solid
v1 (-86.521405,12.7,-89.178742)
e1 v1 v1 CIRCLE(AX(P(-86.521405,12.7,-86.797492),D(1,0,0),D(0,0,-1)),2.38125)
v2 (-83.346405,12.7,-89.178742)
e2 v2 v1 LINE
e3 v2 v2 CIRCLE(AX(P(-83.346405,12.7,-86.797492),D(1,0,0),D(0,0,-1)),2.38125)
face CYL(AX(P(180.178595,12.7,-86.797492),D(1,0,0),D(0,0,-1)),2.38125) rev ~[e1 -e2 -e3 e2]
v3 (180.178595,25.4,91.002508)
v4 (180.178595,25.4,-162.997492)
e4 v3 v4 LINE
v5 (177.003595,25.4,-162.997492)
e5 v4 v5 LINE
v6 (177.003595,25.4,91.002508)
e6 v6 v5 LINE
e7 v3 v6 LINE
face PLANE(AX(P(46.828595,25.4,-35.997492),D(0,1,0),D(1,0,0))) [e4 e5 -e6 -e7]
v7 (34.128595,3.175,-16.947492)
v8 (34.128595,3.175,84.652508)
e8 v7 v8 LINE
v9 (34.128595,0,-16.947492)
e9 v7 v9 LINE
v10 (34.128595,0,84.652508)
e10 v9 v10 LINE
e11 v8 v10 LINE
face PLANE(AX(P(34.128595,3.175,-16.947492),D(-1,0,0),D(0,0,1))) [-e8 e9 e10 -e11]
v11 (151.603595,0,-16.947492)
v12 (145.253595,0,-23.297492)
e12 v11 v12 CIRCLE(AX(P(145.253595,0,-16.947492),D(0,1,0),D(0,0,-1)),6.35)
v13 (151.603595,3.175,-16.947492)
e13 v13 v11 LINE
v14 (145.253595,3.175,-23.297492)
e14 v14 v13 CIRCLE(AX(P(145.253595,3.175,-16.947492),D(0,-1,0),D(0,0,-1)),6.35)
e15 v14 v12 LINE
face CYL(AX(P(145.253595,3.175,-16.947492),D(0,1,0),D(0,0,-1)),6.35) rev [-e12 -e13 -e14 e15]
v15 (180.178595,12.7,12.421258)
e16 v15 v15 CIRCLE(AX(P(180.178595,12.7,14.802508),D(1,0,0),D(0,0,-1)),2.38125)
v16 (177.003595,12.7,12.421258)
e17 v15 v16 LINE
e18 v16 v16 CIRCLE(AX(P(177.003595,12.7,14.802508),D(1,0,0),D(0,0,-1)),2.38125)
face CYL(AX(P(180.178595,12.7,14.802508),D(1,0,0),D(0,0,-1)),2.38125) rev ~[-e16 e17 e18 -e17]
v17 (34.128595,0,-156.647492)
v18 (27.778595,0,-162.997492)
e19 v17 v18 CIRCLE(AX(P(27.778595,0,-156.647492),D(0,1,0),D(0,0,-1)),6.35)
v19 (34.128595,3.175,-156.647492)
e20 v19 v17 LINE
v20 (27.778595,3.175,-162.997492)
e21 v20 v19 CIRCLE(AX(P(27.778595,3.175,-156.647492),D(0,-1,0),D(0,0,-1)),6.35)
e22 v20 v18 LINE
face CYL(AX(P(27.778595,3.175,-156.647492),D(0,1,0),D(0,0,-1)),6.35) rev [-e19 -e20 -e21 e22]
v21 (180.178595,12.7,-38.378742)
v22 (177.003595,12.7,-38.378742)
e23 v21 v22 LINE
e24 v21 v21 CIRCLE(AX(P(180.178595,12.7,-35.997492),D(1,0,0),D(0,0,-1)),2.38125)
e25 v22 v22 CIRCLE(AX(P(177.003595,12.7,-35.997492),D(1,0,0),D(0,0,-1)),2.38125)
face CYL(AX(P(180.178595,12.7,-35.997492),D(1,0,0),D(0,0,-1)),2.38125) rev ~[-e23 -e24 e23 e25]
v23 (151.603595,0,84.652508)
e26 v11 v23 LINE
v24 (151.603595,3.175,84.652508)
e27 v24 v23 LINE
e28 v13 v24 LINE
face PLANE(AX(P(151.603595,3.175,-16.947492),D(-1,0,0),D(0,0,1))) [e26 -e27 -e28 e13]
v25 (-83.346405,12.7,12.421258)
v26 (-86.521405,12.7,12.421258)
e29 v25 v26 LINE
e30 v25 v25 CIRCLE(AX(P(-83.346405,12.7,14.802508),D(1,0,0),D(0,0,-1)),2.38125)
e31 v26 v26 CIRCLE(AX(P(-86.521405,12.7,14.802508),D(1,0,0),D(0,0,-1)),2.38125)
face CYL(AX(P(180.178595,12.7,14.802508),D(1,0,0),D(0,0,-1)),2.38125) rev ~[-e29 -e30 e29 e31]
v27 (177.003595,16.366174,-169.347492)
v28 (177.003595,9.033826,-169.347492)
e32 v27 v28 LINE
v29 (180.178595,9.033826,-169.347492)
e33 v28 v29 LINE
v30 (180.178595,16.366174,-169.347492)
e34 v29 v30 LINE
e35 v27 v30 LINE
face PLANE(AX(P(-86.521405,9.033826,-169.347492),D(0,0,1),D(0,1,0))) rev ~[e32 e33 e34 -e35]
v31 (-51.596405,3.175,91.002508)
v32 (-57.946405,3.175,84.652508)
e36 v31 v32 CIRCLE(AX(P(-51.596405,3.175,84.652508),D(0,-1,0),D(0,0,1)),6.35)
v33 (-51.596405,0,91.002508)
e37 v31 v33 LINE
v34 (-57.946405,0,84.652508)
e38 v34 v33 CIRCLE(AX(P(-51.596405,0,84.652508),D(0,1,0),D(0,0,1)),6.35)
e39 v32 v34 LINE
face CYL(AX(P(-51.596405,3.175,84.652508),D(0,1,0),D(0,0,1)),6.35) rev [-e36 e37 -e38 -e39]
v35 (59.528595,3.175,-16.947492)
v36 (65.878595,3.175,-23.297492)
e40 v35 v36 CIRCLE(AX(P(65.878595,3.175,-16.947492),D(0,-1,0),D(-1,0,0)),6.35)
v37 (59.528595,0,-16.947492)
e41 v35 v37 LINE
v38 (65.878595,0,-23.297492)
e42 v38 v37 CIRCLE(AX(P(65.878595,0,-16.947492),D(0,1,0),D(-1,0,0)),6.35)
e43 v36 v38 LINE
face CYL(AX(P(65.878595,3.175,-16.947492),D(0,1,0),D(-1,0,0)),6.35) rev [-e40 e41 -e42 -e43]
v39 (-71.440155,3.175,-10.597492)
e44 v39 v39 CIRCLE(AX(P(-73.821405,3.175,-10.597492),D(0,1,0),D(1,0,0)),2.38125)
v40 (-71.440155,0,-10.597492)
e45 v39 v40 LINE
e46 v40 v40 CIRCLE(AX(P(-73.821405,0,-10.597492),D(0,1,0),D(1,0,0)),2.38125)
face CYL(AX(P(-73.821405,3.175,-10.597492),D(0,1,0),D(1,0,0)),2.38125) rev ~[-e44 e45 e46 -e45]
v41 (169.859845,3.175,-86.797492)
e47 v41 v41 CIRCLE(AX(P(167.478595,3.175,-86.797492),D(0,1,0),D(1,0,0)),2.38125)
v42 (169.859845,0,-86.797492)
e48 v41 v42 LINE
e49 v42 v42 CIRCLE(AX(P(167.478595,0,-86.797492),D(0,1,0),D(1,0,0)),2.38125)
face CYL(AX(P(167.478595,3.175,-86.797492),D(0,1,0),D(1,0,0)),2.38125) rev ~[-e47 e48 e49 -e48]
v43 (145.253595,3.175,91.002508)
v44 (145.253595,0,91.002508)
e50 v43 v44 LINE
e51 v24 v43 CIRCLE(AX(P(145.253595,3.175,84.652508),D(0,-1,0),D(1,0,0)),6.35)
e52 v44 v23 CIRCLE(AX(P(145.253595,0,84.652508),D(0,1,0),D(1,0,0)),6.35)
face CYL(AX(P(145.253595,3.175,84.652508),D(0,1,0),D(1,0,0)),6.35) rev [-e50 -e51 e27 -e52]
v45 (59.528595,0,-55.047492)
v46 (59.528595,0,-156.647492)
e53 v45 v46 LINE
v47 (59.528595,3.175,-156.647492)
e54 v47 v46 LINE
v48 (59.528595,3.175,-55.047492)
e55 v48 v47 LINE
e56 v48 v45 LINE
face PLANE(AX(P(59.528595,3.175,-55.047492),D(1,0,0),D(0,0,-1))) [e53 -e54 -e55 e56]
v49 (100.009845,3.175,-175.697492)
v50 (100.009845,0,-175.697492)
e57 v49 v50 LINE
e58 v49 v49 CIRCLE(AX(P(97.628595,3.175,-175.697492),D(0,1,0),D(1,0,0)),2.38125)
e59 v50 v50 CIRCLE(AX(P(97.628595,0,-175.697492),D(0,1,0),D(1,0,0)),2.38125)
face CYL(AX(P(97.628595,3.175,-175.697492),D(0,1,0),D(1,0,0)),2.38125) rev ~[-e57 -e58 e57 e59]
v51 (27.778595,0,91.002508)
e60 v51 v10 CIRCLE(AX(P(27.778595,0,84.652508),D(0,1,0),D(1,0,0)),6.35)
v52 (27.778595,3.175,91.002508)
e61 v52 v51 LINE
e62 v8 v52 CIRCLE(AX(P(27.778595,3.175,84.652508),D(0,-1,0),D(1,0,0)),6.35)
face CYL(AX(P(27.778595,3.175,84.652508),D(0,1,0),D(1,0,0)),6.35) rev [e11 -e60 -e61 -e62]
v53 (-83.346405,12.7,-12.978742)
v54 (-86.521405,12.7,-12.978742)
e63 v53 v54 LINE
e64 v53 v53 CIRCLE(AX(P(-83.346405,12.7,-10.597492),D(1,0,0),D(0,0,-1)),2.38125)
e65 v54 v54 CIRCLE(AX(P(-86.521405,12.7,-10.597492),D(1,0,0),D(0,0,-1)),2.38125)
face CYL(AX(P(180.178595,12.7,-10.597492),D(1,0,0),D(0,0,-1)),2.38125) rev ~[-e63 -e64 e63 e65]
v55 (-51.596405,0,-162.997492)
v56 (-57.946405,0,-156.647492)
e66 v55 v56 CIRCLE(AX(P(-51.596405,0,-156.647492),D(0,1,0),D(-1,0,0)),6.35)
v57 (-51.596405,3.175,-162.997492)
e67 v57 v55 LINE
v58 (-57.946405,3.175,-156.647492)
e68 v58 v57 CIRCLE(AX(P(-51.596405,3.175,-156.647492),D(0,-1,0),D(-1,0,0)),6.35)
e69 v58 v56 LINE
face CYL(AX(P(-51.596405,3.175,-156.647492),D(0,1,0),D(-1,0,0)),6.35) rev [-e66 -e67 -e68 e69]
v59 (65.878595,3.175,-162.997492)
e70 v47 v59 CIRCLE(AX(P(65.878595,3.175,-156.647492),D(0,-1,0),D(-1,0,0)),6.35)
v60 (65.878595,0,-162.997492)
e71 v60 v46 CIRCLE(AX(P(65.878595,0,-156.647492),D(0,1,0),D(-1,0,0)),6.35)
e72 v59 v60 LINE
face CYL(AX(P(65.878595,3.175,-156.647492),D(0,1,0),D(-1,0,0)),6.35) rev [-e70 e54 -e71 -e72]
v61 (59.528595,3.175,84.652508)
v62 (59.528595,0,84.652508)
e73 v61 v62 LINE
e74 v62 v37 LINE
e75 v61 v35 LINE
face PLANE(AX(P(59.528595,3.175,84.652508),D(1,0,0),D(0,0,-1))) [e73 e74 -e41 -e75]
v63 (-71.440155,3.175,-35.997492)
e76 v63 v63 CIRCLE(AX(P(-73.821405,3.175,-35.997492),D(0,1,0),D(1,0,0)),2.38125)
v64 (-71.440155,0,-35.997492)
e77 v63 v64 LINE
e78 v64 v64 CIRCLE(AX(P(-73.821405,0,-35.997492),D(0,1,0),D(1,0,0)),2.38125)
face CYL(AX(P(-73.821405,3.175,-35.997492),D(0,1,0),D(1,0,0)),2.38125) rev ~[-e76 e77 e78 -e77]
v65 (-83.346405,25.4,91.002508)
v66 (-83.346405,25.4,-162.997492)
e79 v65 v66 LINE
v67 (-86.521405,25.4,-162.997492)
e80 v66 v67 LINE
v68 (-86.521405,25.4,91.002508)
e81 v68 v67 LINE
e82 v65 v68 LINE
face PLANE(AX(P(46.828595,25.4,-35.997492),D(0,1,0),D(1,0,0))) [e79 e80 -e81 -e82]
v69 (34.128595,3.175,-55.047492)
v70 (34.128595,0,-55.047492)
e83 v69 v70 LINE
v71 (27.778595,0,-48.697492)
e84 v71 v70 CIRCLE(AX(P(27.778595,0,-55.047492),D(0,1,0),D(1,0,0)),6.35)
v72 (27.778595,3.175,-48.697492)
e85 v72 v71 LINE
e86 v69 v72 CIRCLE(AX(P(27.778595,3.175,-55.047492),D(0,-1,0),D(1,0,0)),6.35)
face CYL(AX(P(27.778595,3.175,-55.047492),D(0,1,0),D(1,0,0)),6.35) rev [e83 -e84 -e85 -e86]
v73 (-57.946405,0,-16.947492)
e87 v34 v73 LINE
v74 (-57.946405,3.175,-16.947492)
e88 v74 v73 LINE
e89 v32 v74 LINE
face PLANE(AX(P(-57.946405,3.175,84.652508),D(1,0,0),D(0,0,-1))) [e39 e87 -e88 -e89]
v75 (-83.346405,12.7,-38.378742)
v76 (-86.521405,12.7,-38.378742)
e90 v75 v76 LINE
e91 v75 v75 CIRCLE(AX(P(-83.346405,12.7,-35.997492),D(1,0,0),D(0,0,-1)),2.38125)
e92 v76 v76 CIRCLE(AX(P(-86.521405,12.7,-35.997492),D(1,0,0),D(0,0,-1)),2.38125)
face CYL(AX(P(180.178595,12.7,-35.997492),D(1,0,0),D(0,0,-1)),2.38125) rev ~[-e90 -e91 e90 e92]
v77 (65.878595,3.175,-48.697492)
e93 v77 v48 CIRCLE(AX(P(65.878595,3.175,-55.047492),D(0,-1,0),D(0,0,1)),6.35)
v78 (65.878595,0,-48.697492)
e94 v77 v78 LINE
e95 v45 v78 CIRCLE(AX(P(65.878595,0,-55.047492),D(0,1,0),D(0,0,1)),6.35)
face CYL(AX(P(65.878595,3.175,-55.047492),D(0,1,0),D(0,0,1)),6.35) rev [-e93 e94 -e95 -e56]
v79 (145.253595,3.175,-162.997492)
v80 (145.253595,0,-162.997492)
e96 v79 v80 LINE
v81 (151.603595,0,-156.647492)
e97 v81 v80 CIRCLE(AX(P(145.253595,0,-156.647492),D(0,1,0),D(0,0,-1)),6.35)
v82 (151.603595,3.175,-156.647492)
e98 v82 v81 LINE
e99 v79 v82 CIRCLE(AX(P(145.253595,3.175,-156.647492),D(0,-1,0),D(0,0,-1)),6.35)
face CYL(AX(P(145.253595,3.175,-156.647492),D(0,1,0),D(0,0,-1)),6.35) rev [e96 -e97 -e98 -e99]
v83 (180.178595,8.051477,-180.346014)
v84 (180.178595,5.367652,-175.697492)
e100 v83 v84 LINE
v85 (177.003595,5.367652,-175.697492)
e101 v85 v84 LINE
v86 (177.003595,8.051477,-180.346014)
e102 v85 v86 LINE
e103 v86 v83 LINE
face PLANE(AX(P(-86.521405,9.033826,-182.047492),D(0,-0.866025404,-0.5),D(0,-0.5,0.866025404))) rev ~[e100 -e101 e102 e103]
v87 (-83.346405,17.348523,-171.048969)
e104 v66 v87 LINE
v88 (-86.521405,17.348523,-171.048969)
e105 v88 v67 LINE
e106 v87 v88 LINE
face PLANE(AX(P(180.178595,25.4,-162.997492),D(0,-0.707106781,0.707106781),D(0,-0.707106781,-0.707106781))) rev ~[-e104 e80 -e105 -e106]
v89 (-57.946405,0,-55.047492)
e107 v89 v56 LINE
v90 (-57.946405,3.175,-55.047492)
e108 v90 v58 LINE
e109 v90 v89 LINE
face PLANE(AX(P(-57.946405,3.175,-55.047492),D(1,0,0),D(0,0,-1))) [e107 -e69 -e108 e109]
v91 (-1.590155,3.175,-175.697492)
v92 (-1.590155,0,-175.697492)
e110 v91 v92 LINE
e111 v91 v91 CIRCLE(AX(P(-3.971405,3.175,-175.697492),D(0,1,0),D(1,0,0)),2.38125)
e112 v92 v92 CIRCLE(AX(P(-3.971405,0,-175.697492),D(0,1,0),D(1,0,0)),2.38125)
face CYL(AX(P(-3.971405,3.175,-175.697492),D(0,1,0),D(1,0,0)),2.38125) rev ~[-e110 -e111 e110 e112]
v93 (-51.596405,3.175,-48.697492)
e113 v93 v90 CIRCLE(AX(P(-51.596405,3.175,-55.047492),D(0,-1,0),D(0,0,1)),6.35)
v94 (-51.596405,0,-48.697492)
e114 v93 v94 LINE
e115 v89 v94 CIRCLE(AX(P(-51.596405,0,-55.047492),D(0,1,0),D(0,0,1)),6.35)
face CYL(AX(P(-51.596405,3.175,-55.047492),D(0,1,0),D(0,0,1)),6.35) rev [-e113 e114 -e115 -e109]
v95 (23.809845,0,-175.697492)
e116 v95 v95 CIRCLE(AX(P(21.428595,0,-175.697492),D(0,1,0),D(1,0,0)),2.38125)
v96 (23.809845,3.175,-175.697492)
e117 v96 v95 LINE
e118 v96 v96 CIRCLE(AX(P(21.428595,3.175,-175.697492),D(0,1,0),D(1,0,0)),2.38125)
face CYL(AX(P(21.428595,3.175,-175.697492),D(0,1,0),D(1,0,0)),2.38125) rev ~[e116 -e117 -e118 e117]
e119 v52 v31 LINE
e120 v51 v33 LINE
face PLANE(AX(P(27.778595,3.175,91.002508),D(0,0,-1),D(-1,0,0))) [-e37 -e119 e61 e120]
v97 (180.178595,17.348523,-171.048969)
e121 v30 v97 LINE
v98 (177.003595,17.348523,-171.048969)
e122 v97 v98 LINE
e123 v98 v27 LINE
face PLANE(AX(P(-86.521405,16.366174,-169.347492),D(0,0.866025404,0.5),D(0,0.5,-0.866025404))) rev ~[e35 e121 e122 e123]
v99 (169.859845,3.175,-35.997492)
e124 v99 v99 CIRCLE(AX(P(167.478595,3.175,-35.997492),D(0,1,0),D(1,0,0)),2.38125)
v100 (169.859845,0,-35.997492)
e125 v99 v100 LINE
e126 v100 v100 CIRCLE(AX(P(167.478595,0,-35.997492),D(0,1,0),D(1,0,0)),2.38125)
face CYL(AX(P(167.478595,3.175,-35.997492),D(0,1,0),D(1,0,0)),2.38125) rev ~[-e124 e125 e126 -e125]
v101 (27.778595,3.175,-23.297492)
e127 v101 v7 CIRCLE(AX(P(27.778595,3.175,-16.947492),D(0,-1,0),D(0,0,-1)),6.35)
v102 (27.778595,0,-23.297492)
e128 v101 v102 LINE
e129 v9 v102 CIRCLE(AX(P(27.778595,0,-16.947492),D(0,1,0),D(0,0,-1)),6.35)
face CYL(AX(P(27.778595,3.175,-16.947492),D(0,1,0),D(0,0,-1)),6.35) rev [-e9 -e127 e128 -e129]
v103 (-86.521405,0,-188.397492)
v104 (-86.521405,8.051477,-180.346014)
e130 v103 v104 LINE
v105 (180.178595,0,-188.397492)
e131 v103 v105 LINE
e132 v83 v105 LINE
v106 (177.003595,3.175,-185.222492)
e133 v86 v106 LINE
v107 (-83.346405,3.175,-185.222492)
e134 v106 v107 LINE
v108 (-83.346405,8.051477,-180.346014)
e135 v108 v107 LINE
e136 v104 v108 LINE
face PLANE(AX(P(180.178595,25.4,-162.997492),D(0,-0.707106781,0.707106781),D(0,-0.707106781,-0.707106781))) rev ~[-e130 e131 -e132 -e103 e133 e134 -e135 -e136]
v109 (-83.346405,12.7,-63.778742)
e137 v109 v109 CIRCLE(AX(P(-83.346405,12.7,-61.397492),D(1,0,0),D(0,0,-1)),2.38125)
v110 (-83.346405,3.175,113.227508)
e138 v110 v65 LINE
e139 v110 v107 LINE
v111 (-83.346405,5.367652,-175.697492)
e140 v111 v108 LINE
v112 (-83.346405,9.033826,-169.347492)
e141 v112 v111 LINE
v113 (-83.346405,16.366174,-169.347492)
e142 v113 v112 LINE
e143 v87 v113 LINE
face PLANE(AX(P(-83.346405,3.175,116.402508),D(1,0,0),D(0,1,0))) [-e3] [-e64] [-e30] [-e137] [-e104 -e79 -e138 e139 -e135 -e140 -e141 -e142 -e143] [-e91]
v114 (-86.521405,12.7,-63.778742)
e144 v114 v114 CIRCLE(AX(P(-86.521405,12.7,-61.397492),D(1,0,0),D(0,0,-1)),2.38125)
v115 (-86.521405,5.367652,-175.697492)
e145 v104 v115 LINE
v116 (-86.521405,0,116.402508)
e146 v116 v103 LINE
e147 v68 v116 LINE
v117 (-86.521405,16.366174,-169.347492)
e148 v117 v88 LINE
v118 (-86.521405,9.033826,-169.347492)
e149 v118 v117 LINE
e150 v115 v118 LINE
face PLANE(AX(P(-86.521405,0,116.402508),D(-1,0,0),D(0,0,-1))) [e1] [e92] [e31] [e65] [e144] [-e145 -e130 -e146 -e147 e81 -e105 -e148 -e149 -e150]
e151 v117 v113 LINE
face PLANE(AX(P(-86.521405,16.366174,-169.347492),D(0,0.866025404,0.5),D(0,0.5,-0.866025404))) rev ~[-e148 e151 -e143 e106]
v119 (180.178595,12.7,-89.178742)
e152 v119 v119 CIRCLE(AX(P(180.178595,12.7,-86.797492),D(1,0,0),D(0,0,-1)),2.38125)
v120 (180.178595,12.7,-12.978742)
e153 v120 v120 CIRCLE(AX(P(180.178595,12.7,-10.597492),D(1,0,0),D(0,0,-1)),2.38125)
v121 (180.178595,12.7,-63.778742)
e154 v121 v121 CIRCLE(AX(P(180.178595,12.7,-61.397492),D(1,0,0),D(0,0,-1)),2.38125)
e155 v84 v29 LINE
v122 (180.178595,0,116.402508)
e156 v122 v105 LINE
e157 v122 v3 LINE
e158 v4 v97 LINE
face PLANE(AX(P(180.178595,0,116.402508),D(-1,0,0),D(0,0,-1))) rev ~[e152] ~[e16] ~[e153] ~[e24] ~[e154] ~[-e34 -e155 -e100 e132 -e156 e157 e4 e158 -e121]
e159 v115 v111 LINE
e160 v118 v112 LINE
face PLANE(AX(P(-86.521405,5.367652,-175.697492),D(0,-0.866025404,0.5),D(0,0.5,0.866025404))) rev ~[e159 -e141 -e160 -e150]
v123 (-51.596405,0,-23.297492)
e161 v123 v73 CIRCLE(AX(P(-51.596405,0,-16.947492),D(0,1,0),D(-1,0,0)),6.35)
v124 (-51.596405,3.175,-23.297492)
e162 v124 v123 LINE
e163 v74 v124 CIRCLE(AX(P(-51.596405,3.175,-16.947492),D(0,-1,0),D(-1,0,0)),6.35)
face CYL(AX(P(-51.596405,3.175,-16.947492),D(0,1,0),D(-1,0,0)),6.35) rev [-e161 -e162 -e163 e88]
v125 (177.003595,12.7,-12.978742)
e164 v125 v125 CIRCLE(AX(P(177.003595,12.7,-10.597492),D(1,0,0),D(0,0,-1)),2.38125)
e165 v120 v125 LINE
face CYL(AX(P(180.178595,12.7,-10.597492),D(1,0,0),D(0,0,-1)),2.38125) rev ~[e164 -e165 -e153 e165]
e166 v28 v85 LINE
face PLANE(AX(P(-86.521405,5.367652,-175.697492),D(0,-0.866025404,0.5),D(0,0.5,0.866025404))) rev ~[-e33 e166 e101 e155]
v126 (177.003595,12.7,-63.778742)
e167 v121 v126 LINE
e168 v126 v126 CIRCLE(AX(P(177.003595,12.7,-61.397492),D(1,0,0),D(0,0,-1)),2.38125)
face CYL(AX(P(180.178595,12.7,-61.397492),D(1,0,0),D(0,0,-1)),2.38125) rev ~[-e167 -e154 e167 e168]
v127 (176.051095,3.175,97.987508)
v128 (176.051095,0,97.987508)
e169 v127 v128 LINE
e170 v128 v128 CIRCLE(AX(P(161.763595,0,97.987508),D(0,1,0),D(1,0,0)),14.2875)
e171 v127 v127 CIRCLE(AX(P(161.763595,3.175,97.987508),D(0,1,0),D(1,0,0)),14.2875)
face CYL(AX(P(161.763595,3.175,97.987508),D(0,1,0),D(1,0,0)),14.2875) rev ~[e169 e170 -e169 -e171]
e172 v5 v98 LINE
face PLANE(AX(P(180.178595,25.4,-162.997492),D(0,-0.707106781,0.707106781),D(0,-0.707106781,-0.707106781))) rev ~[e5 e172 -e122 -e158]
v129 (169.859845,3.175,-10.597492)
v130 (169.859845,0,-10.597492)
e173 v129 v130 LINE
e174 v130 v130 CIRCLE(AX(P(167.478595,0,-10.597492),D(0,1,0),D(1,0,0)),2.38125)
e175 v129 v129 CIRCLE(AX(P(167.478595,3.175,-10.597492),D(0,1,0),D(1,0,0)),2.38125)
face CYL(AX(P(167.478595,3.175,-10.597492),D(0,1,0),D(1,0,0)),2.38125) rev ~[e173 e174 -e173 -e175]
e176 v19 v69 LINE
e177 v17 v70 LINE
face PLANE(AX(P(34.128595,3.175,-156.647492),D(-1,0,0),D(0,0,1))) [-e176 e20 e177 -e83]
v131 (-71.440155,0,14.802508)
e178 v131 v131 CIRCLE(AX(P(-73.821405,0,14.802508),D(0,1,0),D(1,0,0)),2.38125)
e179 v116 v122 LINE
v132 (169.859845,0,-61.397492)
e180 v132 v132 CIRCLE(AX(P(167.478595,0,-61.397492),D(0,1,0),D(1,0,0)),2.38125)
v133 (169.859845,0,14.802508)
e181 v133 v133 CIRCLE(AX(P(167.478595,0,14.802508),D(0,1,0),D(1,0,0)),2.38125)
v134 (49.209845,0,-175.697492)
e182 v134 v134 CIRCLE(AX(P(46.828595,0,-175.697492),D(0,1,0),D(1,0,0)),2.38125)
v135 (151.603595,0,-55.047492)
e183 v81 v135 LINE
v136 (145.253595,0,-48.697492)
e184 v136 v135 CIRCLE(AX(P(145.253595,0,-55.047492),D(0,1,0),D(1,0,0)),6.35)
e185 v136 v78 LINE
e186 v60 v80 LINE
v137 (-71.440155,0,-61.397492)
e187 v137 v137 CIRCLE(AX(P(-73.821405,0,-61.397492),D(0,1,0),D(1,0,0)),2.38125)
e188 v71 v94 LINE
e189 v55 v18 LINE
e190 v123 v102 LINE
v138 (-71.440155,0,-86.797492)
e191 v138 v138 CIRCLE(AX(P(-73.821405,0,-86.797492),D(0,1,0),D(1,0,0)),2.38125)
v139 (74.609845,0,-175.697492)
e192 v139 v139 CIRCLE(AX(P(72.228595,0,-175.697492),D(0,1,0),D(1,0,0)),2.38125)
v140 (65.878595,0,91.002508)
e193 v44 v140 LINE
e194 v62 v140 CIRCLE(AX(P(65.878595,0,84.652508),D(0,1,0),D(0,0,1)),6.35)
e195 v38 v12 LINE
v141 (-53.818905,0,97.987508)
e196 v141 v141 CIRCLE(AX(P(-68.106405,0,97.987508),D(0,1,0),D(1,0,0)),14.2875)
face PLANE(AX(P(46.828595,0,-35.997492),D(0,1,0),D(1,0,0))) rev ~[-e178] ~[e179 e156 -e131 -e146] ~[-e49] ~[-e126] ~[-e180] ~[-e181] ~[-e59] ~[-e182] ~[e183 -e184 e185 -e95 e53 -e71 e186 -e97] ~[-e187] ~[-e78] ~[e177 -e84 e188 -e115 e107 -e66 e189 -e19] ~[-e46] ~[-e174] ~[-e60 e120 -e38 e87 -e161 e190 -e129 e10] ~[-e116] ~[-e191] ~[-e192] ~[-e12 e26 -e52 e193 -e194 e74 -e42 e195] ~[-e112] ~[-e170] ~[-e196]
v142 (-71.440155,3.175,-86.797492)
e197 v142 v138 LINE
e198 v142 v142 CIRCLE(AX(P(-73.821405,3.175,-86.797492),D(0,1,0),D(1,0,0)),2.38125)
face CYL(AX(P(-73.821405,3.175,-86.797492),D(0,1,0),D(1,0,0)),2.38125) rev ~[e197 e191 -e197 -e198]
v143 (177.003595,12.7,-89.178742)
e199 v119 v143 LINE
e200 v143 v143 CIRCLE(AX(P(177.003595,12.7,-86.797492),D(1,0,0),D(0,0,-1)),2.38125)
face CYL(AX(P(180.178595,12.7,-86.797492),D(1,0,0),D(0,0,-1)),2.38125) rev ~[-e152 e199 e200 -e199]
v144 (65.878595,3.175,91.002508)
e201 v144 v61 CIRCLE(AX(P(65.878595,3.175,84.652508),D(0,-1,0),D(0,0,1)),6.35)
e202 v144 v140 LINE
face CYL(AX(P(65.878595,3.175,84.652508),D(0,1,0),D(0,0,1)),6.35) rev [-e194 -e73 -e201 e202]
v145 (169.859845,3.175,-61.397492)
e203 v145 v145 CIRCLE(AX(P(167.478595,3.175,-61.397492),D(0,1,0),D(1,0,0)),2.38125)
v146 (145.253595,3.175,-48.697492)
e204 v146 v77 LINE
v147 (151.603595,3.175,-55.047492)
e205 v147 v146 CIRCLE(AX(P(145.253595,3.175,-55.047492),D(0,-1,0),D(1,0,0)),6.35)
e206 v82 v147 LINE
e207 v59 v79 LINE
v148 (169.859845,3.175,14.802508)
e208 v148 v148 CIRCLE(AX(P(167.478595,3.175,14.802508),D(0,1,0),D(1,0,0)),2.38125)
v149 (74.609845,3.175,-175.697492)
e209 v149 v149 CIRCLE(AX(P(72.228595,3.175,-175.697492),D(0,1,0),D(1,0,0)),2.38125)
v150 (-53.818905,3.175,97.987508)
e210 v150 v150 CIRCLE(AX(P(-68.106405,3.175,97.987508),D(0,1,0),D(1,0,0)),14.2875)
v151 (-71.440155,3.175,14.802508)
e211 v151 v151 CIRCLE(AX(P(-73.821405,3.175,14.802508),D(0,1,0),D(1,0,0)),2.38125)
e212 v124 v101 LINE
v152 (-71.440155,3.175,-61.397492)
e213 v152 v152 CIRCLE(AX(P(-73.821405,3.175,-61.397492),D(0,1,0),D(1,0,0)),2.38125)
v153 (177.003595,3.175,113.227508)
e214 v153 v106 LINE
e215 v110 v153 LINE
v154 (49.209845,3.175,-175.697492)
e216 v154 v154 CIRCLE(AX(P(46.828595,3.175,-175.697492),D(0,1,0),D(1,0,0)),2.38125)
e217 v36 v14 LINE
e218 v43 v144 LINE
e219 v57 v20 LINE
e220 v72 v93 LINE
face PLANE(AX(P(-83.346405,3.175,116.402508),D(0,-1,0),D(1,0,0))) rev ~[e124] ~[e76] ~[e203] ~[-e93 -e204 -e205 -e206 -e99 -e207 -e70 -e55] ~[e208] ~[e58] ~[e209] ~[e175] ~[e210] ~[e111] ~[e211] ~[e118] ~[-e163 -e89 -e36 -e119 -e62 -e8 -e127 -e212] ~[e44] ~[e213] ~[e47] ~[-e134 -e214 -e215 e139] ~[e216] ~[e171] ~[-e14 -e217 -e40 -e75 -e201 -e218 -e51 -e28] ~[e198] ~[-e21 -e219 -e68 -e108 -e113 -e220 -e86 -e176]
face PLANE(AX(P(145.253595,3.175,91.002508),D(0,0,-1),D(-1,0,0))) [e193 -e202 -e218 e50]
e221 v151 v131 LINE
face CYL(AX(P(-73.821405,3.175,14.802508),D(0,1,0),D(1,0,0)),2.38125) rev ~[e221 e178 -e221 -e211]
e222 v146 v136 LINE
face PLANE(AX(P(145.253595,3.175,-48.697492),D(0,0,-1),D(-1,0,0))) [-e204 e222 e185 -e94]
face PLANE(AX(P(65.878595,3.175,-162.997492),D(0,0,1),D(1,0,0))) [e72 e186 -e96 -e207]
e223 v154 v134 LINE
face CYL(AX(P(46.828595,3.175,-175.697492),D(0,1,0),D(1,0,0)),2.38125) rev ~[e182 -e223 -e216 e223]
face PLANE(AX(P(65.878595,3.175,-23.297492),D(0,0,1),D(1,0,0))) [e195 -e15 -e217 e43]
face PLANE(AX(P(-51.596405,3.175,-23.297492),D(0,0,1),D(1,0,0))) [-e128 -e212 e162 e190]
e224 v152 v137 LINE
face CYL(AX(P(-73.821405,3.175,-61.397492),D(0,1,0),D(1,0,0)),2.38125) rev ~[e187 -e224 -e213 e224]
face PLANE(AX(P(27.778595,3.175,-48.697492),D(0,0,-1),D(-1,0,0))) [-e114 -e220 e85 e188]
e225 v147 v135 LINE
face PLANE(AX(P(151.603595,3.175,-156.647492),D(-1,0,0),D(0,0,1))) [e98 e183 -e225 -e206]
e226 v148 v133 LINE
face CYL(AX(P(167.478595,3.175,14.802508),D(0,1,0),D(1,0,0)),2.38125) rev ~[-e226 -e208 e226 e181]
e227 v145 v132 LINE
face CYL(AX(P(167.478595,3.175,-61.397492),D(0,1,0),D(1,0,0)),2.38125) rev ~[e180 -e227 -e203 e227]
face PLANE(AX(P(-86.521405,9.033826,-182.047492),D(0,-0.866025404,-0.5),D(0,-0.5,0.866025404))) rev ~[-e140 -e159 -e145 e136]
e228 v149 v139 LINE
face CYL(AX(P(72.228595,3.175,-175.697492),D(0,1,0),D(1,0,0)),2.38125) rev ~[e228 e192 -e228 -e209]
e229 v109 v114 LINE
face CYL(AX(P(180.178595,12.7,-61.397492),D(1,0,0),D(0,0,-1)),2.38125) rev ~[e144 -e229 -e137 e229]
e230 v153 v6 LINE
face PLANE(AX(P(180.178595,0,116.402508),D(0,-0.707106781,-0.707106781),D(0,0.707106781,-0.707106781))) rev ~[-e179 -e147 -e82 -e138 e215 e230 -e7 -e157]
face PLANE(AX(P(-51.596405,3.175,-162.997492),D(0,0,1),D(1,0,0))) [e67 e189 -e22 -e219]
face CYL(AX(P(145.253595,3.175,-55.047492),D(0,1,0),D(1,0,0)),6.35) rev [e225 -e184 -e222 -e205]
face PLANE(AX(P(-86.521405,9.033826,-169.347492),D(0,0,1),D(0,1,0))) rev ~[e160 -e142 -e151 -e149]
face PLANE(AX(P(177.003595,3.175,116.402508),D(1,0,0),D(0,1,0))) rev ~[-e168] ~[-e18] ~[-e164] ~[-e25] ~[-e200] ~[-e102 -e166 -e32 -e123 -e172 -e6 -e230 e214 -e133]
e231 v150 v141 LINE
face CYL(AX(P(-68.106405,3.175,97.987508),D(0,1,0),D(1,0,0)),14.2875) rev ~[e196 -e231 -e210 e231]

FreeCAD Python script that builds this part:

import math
import FreeCAD as App
import Part
import Sketcher
from FreeCAD import Vector
Q = App.Units.Quantity

doc = App.newDocument("Part")
params = doc.addObject("Spreadsheet::Sheet", "Params")
for row, (alias, value) in enumerate([
    ("sketch1_height", "12 in"),
    ("sketch1_width", "10.5 in"),
    ("pad1_length", "1 in"),
    ("sketch2_width", "10.25 in"),
    ("sketch2_height", "0.875 in"),
    ("pocket1_length", "500 in"),
    ("sketch3_height", "4 in"),
    ("sketch3_radius", "0.25 in"),
    ("sketch3_width", "3.125 in"),
    ("pocket2_length", "500 in"),
    ("sketch4_width", "1 in"),
    ("pocket3_length", "500 in"),
    ("sketch5_diameter", "0.1875 in"),
    ("sketch6_diameter", "0.1875 in"),
    ("sketch7_diameter", "1.125 in"),
    ("pocket6_length", "0.125 in"),
    ("sketch8_diameter", "0.1875 in"),
], start=1):
    params.set(f"A{row}", alias)
    params.set(f"B{row}", "=" + value)
    params.setAlias(f"B{row}", alias)

body = doc.addObject("PartDesign::Body", "Body")

sketch1 = doc.addObject("Sketcher::SketchObject", "Sketch")
body.addObject(sketch1)
sketch1.AttachmentSupport = (doc.XZ_Plane, [""])
sketch1.MapMode = "FlatFace"
sketch1.addGeometry(Part.LineSegment(Vector(-86.521405, -188.397492, 0), Vector(-86.521405, 116.402508, 0)), False)
sketch1.addGeometry(Part.LineSegment(Vector(-86.521405, 116.402508, 0), Vector(180.178595, 116.402508, 0)), False)
sketch1.addGeometry(Part.LineSegment(Vector(180.178595, 116.402508, 0), Vector(180.178595, -188.397492, 0)), False)
sketch1.addGeometry(Part.LineSegment(Vector(180.178595, -188.397492, 0), Vector(-86.521405, -188.397492, 0)), False)
sketch1.addConstraint(Sketcher.Constraint("Coincident", 0, 2, 1, 1))
sketch1.addConstraint(Sketcher.Constraint("Coincident", 1, 2, 2, 1))
sketch1.addConstraint(Sketcher.Constraint("Coincident", 2, 2, 3, 1))
sketch1.addConstraint(Sketcher.Constraint("Coincident", 3, 2, 0, 1))
sketch1.addConstraint(Sketcher.Constraint("Vertical", 0))
sketch1.addConstraint(Sketcher.Constraint("Horizontal", 1))
sketch1.addConstraint(Sketcher.Constraint("Vertical", 2))
sketch1.addConstraint(Sketcher.Constraint("Horizontal", 3))
sketch1.addConstraint(Sketcher.Constraint("DistanceY", 0, 1, 0, 2, Q("12 in")))
sketch1.addConstraint(Sketcher.Constraint("DistanceX", 1, 1, 1, 2, Q("10.5 in")))
sketch1.addConstraint(Sketcher.Constraint("DistanceY", -1, 1, 0, 2, Q("116.402508 mm")))
sketch1.addConstraint(Sketcher.Constraint("DistanceX", 0, 2, -1, 1, Q("86.521405 mm")))
sketch1.setExpression("Constraints[8]", "Params.sketch1_height")
sketch1.setExpression("Constraints[9]", "Params.sketch1_width")
pad1 = doc.addObject("PartDesign::Pad", "Pad")
body.addObject(pad1)
pad1.Profile = sketch1
pad1.setExpression("Length", "Params.pad1_length")
pad1.Reversed = True

sketch2 = doc.addObject("Sketcher::SketchObject", "Sketch001")
body.addObject(sketch2)
sketch2.AttachmentSupport = (doc.XY_Plane, [""])
sketch2.MapMode = "FlatFace"
sketch2.AttachmentOffset = App.Placement(Vector(0, 0, 116.402508), App.Rotation())
sketch2.addGeometry(Part.LineSegment(Vector(-83.346405, 25.4, 0), Vector(-83.346405, 3.175, 0)), False)
sketch2.addGeometry(Part.LineSegment(Vector(-83.346405, 3.175, 0), Vector(177.003595, 3.175, 0)), False)
sketch2.addGeometry(Part.LineSegment(Vector(177.003595, 3.175, 0), Vector(177.003595, 25.4, 0)), False)
sketch2.addGeometry(Part.LineSegment(Vector(177.003595, 25.4, 0), Vector(-83.346405, 25.4, 0)), False)
sketch2.addConstraint(Sketcher.Constraint("Coincident", 0, 2, 1, 1))
sketch2.addConstraint(Sketcher.Constraint("Coincident", 1, 2, 2, 1))
sketch2.addConstraint(Sketcher.Constraint("Coincident", 2, 2, 3, 1))
sketch2.addConstraint(Sketcher.Constraint("Coincident", 3, 2, 0, 1))
sketch2.addConstraint(Sketcher.Constraint("Vertical", 0))
sketch2.addConstraint(Sketcher.Constraint("Horizontal", 1))
sketch2.addConstraint(Sketcher.Constraint("Vertical", 2))
sketch2.addConstraint(Sketcher.Constraint("Horizontal", 3))
sketch2.addConstraint(Sketcher.Constraint("DistanceY", -1, 1, 2, 2, Q("1 in")))
sketch2.addConstraint(Sketcher.Constraint("DistanceX", 1, 1, 1, 2, Q("10.25 in")))
sketch2.addConstraint(Sketcher.Constraint("DistanceY", 0, 2, 0, 1, Q("0.875 in")))
sketch2.addConstraint(Sketcher.Constraint("DistanceX", 0, 2, -1, 1, Q("83.346405 mm")))
sketch2.setExpression("Constraints[9]", "Params.sketch2_width")
sketch2.setExpression("Constraints[10]", "Params.sketch2_height")
pocket1 = doc.addObject("PartDesign::Pocket", "Pocket")
body.addObject(pocket1)
pocket1.Profile = sketch2
pocket1.setExpression("Length", "Params.pocket1_length")

sketch3 = doc.addObject("Sketcher::SketchObject", "Sketch002")
body.addObject(sketch3)
sketch3.AttachmentSupport = (doc.XZ_Plane, [""])
sketch3.MapMode = "FlatFace"
sketch3.AttachmentOffset = App.Placement(Vector(0, 0, -0.125 * 25.4), App.Rotation())
sketch3.addGeometry(Part.ArcOfCircle(Part.Circle(Vector(65.878595, 84.652508, 0), Vector(0, 0, 1), 6.35), math.radians(90), math.radians(180)), False)
sketch3.addGeometry(Part.LineSegment(Vector(65.878595, 91.002508, 0), Vector(145.253595, 91.002508, 0)), False)
sketch3.addGeometry(Part.ArcOfCircle(Part.Circle(Vector(145.253595, 84.652508, 0), Vector(0, 0, 1), 6.35), math.radians(0), math.radians(90)), False)
sketch3.addGeometry(Part.LineSegment(Vector(151.603595, 84.652508, 0), Vector(151.603595, -16.947492, 0)), False)
sketch3.addGeometry(Part.ArcOfCircle(Part.Circle(Vector(145.253595, -16.947492, 0), Vector(0, 0, 1), 6.35), math.radians(-90), math.radians(0)), False)
sketch3.addGeometry(Part.LineSegment(Vector(145.253595, -23.297492, 0), Vector(65.878595, -23.297492, 0)), False)
sketch3.addGeometry(Part.ArcOfCircle(Part.Circle(Vector(65.878595, -16.947492, 0), Vector(0, 0, 1), 6.35), math.radians(180), math.radians(270)), False)
sketch3.addGeometry(Part.LineSegment(Vector(59.528595, -16.947492, 0), Vector(59.528595, 84.652508, 0)), False)
sketch3.addGeometry(Part.ArcOfCircle(Part.Circle(Vector(145.253595, -156.647492, 0), Vector(0, 0, 1), 6.35), math.radians(-90), math.radians(0)), False)
sketch3.addGeometry(Part.LineSegment(Vector(145.253595, -162.997492, 0), Vector(65.878595, -162.997492, 0)), False)
sketch3.addGeometry(Part.ArcOfCircle(Part.Circle(Vector(65.878595, -156.647492, 0), Vector(0, 0, 1), 6.35), math.radians(180), math.radians(270)), False)
sketch3.addGeometry(Part.LineSegment(Vector(59.528595, -156.647492, 0), Vector(59.528595, -55.047492, 0)), False)
sketch3.addGeometry(Part.ArcOfCircle(Part.Circle(Vector(65.878595, -55.047492, 0), Vector(0, 0, 1), 6.35), math.radians(90), math.radians(180)), False)
sketch3.addGeometry(Part.LineSegment(Vector(65.878595, -48.697492, 0), Vector(145.253595, -48.697492, 0)), False)
sketch3.addGeometry(Part.ArcOfCircle(Part.Circle(Vector(145.253595, -55.047492, 0), Vector(0, 0, 1), 6.35), math.radians(0), math.radians(90)), False)
sketch3.addGeometry(Part.LineSegment(Vector(151.603595, -55.047492, 0), Vector(151.603595, -156.647492, 0)), False)
sketch3.addGeometry(Part.ArcOfCircle(Part.Circle(Vector(27.778595, -156.647492, 0), Vector(0, 0, 1), 6.35), math.radians(-90), math.radians(0)), False)
sketch3.addGeometry(Part.LineSegment(Vector(27.778595, -162.997492, 0), Vector(-51.596405, -162.997492, 0)), False)
sketch3.addGeometry(Part.ArcOfCircle(Part.Circle(Vector(-51.596405, -156.647492, 0), Vector(0, 0, 1), 6.35), math.radians(180), math.radians(270)), False)
sketch3.addGeometry(Part.LineSegment(Vector(-57.946405, -156.647492, 0), Vector(-57.946405, -55.047492, 0)), False)
sketch3.addGeometry(Part.ArcOfCircle(Part.Circle(Vector(-51.596405, -55.047492, 0), Vector(0, 0, 1), 6.35), math.radians(90), math.radians(180)), False)
sketch3.addGeometry(Part.LineSegment(Vector(-51.596405, -48.697492, 0), Vector(27.778595, -48.697492, 0)), False)
sketch3.addGeometry(Part.ArcOfCircle(Part.Circle(Vector(27.778595, -55.047492, 0), Vector(0, 0, 1), 6.35), math.radians(0), math.radians(90)), False)
sketch3.addGeometry(Part.LineSegment(Vector(34.128595, -55.047492, 0), Vector(34.128595, -156.647492, 0)), False)
sketch3.addGeometry(Part.LineSegment(Vector(-57.946405, -16.947492, 0), Vector(-57.946405, 84.652508, 0)), False)
sketch3.addGeometry(Part.ArcOfCircle(Part.Circle(Vector(-51.596405, 84.652508, 0), Vector(0, 0, 1), 6.35), math.radians(90), math.radians(180)), False)
sketch3.addGeometry(Part.LineSegment(Vector(-51.596405, 91.002508, 0), Vector(27.778595, 91.002508, 0)), False)
sketch3.addGeometry(Part.ArcOfCircle(Part.Circle(Vector(27.778595, 84.652508, 0), Vector(0, 0, 1), 6.35), math.radians(0), math.radians(90)), False)
sketch3.addGeometry(Part.LineSegment(Vector(34.128595, 84.652508, 0), Vector(34.128595, -16.947492, 0)), False)
sketch3.addGeometry(Part.ArcOfCircle(Part.Circle(Vector(27.778595, -16.947492, 0), Vector(0, 0, 1), 6.35), math.radians(-90), math.radians(0)), False)
sketch3.addGeometry(Part.LineSegment(Vector(27.778595, -23.297492, 0), Vector(-51.596405, -23.297492, 0)), False)
sketch3.addGeometry(Part.ArcOfCircle(Part.Circle(Vector(-51.596405, -16.947492, 0), Vector(0, 0, 1), 6.35), math.radians(180), math.radians(270)), False)
sketch3.addConstraint(Sketcher.Constraint("Tangent", 0, 1, 1, 1))
sketch3.addConstraint(Sketcher.Constraint("Tangent", 1, 2, 2, 2))
sketch3.addConstraint(Sketcher.Constraint("Tangent", 2, 1, 3, 1))
sketch3.addConstraint(Sketcher.Constraint("Tangent", 3, 2, 4, 2))
sketch3.addConstraint(Sketcher.Constraint("Tangent", 4, 1, 5, 1))
sketch3.addConstraint(Sketcher.Constraint("Tangent", 5, 2, 6, 2))
sketch3.addConstraint(Sketcher.Constraint("Tangent", 6, 1, 7, 1))
sketch3.addConstraint(Sketcher.Constraint("Tangent", 7, 2, 0, 2))
sketch3.addConstraint(Sketcher.Constraint("Tangent", 8, 1, 9, 1))
sketch3.addConstraint(Sketcher.Constraint("Tangent", 9, 2, 10, 2))
sketch3.addConstraint(Sketcher.Constraint("Tangent", 10, 1, 11, 1))
sketch3.addConstraint(Sketcher.Constraint("Tangent", 11, 2, 12, 2))
sketch3.addConstraint(Sketcher.Constraint("Tangent", 12, 1, 13, 1))
sketch3.addConstraint(Sketcher.Constraint("Tangent", 13, 2, 14, 2))
sketch3.addConstraint(Sketcher.Constraint("Tangent", 14, 1, 15, 1))
sketch3.addConstraint(Sketcher.Constraint("Tangent", 15, 2, 8, 2))
sketch3.addConstraint(Sketcher.Constraint("Tangent", 16, 1, 17, 1))
sketch3.addConstraint(Sketcher.Constraint("Tangent", 17, 2, 18, 2))
sketch3.addConstraint(Sketcher.Constraint("Tangent", 18, 1, 19, 1))
sketch3.addConstraint(Sketcher.Constraint("Tangent", 19, 2, 20, 2))
sketch3.addConstraint(Sketcher.Constraint("Tangent", 20, 1, 21, 1))
sketch3.addConstraint(Sketcher.Constraint("Tangent", 21, 2, 22, 2))
sketch3.addConstraint(Sketcher.Constraint("Tangent", 22, 1, 23, 1))
sketch3.addConstraint(Sketcher.Constraint("Tangent", 23, 2, 16, 2))
sketch3.addConstraint(Sketcher.Constraint("Tangent", 24, 2, 25, 2))
sketch3.addConstraint(Sketcher.Constraint("Tangent", 25, 1, 26, 1))
sketch3.addConstraint(Sketcher.Constraint("Tangent", 26, 2, 27, 2))
sketch3.addConstraint(Sketcher.Constraint("Tangent", 27, 1, 28, 1))
sketch3.addConstraint(Sketcher.Constraint("Tangent", 28, 2, 29, 2))
sketch3.addConstraint(Sketcher.Constraint("Tangent", 29, 1, 30, 1))
sketch3.addConstraint(Sketcher.Constraint("Tangent", 30, 2, 31, 2))
sketch3.addConstraint(Sketcher.Constraint("Tangent", 31, 1, 24, 1))
sketch3.addConstraint(Sketcher.Constraint("Horizontal", 1))
sketch3.addConstraint(Sketcher.Constraint("Vertical", 3))
sketch3.addConstraint(Sketcher.Constraint("Horizontal", 5))
sketch3.addConstraint(Sketcher.Constraint("Vertical", 7))
sketch3.addConstraint(Sketcher.Constraint("Horizontal", 9))
sketch3.addConstraint(Sketcher.Constraint("Vertical", 11))
sketch3.addConstraint(Sketcher.Constraint("Horizontal", 13))
sketch3.addConstraint(Sketcher.Constraint("Vertical", 15))
sketch3.addConstraint(Sketcher.Constraint("Horizontal", 17))
sketch3.addConstraint(Sketcher.Constraint("Vertical", 19))
sketch3.addConstraint(Sketcher.Constraint("Horizontal", 21))
sketch3.addConstraint(Sketcher.Constraint("Vertical", 23))
sketch3.addConstraint(Sketcher.Constraint("Vertical", 24))
sketch3.addConstraint(Sketcher.Constraint("Horizontal", 26))
sketch3.addConstraint(Sketcher.Constraint("Vertical", 28))
sketch3.addConstraint(Sketcher.Constraint("Horizontal", 30))
sketch3.addConstraint(Sketcher.Constraint("Equal", 0, 2))
sketch3.addConstraint(Sketcher.Constraint("Equal", 2, 4))
sketch3.addConstraint(Sketcher.Constraint("Equal", 4, 6))
sketch3.addConstraint(Sketcher.Constraint("Equal", 6, 8))
sketch3.addConstraint(Sketcher.Constraint("Equal", 8, 10))
sketch3.addConstraint(Sketcher.Constraint("Equal", 10, 12))
sketch3.addConstraint(Sketcher.Constraint("Equal", 12, 14))
sketch3.addConstraint(Sketcher.Constraint("Equal", 14, 16))
sketch3.addConstraint(Sketcher.Constraint("Equal", 16, 18))
sketch3.addConstraint(Sketcher.Constraint("Equal", 18, 20))
sketch3.addConstraint(Sketcher.Constraint("Equal", 20, 22))
sketch3.addConstraint(Sketcher.Constraint("Equal", 22, 25))
sketch3.addConstraint(Sketcher.Constraint("Equal", 25, 27))
sketch3.addConstraint(Sketcher.Constraint("Equal", 27, 29))
sketch3.addConstraint(Sketcher.Constraint("Equal", 29, 31))
sketch3.addConstraint(Sketcher.Constraint("Horizontal", 10, 3, 16, 3))
sketch3.addConstraint(Sketcher.Constraint("Horizontal", 14, 3, 20, 3))
sketch3.addConstraint(Sketcher.Constraint("Horizontal", 2, 3, 25, 3))
sketch3.addConstraint(Sketcher.Constraint("Horizontal", 6, 3, 29, 3))
sketch3.addConstraint(Sketcher.Constraint("Vertical", 4, 3, 8, 3))
sketch3.addConstraint(Sketcher.Constraint("Vertical", 6, 3, 10, 3))
sketch3.addConstraint(Sketcher.Constraint("Vertical", 20, 3, 25, 3))
sketch3.addConstraint(Sketcher.Constraint("Vertical", 22, 3, 27, 3))
sketch3.addConstraint(Sketcher.Constraint("Equal", 13, 17))
sketch3.addConstraint(Sketcher.Constraint("Equal", 7, 11))
sketch3.addConstraint(Sketcher.Constraint("DistanceY", 3, 2, 3, 1, Q("4 in")))
sketch3.addConstraint(Sketcher.Constraint("Radius", 0, Q("0.25 in")))
sketch3.addConstraint(Sketcher.Constraint("DistanceY", 12, 1, 5, 2, Q("1 in")))
sketch3.addConstraint(Sketcher.Constraint("DistanceX", 22, 1, 11, 2, Q("1 in")))
sketch3.addConstraint(Sketcher.Constraint("DistanceX", 1, 1, 1, 2, Q("3.125 in")))
sketch3.addConstraint(Sketcher.Constraint("DistanceY", -1, 1, 0, 3, Q("84.652508 mm")))
sketch3.addConstraint(Sketcher.Constraint("DistanceX", -1, 1, 0, 3, Q("65.878595 mm")))
sketch3.setExpression("Constraints[73]", "Params.sketch3_height")
sketch3.setExpression("Constraints[74]", "Params.sketch3_radius")
sketch3.setExpression("Constraints[77]", "Params.sketch3_width")
pocket2 = doc.addObject("PartDesign::Pocket", "Pocket001")
body.addObject(pocket2)
pocket2.Profile = sketch3
pocket2.setExpression("Length", "Params.pocket2_length")
pocket2.Reversed = True

sketch4 = doc.addObject("Sketcher::SketchObject", "Sketch003")
body.addObject(sketch4)
sketch4.AttachmentSupport = (doc.YZ_Plane, [""])
sketch4.MapMode = "FlatFace"
sketch4.AttachmentOffset = App.Placement(Vector(0, 0, 180.178595), App.Rotation())
sketch4.addGeometry(Part.LineSegment(Vector(25.4, -162.997492, 0), Vector(0, -188.397492, 0)), False)
sketch4.addGeometry(Part.LineSegment(Vector(0, -188.397492, 0), Vector(25.4, -188.397492, 0)), False)
sketch4.addGeometry(Part.LineSegment(Vector(25.4, -188.397492, 0), Vector(25.4, -162.997492, 0)), False)
sketch4.addGeometry(Part.LineSegment(Vector(0, 116.402508, 0), Vector(25.4, 91.002508, 0)), False)
sketch4.addGeometry(Part.LineSegment(Vector(25.4, 91.002508, 0), Vector(25.4, 116.402508, 0)), False)
sketch4.addGeometry(Part.LineSegment(Vector(25.4, 116.402508, 0), Vector(0, 116.402508, 0)), False)
sketch4.addConstraint(Sketcher.Constraint("Coincident", 0, 2, 1, 1))
sketch4.addConstraint(Sketcher.Constraint("Coincident", 1, 2, 2, 1))
sketch4.addConstraint(Sketcher.Constraint("Coincident", 2, 2, 0, 1))
sketch4.addConstraint(Sketcher.Constraint("Coincident", 3, 2, 4, 1))
sketch4.addConstraint(Sketcher.Constraint("Coincident", 4, 2, 5, 1))
sketch4.addConstraint(Sketcher.Constraint("Coincident", 5, 2, 3, 1))
sketch4.addConstraint(Sketcher.Constraint("Horizontal", 1))
sketch4.addConstraint(Sketcher.Constraint("Vertical", 2))
sketch4.addConstraint(Sketcher.Constraint("Vertical", 4))
sketch4.addConstraint(Sketcher.Constraint("Horizontal", 5))
sketch4.addConstraint(Sketcher.Constraint("PointOnObject", 0, 2, -2))
sketch4.addConstraint(Sketcher.Constraint("PointOnObject", 5, 2, -2))
sketch4.addConstraint(Sketcher.Constraint("Perpendicular", 0, 3))
sketch4.addConstraint(Sketcher.Constraint("Vertical", 2, 2, 3, 2))
sketch4.addConstraint(Sketcher.Constraint("Equal", 5, 2))
sketch4.addConstraint(Sketcher.Constraint("DistanceX", 1, 1, 1, 2, Q("1 in")))
sketch4.addConstraint(Sketcher.Constraint("DistanceY", 2, 2, 3, 2, Q("10 in")))
sketch4.addConstraint(Sketcher.Constraint("DistanceY", 0, 2, -1, 1, Q("188.397492 mm")))
sketch4.setExpression("Constraints[15]", "Params.sketch4_width")
pocket3 = doc.addObject("PartDesign::Pocket", "Pocket002")
body.addObject(pocket3)
pocket3.Profile = sketch4
pocket3.setExpression("Length", "Params.pocket3_length")

sketch5 = doc.addObject("Sketcher::SketchObject", "Sketch004")
body.addObject(sketch5)
sketch5.AttachmentSupport = (doc.YZ_Plane, [""])
sketch5.MapMode = "FlatFace"
sketch5.AttachmentOffset = App.Placement(Vector(0, 0, 180.178595), App.Rotation())
sketch5.addGeometry(Part.Circle(Vector(12.7, -86.797492, 0), Vector(0, 0, 1), 2.38125), False)
sketch5.addGeometry(Part.Circle(Vector(12.7, -35.997492, 0), Vector(0, 0, 1), 2.38125), False)
sketch5.addGeometry(Part.Circle(Vector(12.7, -61.397492, 0), Vector(0, 0, 1), 2.38125), False)
sketch5.addGeometry(Part.Circle(Vector(12.7, -10.597492, 0), Vector(0, 0, 1), 2.38125), False)
sketch5.addGeometry(Part.Circle(Vector(12.7, 14.802508, 0), Vector(0, 0, 1), 2.38125), False)
sketch5.addConstraint(Sketcher.Constraint("Equal", 0, 1))
sketch5.addConstraint(Sketcher.Constraint("Equal", 1, 2))
sketch5.addConstraint(Sketcher.Constraint("Equal", 2, 3))
sketch5.addConstraint(Sketcher.Constraint("Equal", 3, 4))
sketch5.addConstraint(Sketcher.Constraint("Vertical", 0, 3, 1, 3))
sketch5.addConstraint(Sketcher.Constraint("Vertical", 1, 3, 2, 3))
sketch5.addConstraint(Sketcher.Constraint("Vertical", 2, 3, 3, 3))
sketch5.addConstraint(Sketcher.Constraint("Vertical", 3, 3, 4, 3))
sketch5.addConstraint(Sketcher.Constraint("Diameter", 0, Q("0.1875 in")))
sketch5.addConstraint(Sketcher.Constraint("DistanceY", 0, 3, 1, 3, Q("2 in")))
sketch5.addConstraint(Sketcher.Constraint("DistanceY", 0, 3, 2, 3, Q("1 in")))
sketch5.addConstraint(Sketcher.Constraint("DistanceY", 1, 3, 3, 3, Q("1 in")))
sketch5.addConstraint(Sketcher.Constraint("DistanceY", 3, 3, 4, 3, Q("1 in")))
sketch5.addConstraint(Sketcher.Constraint("DistanceX", -1, 1, 0, 3, Q("0.5 in")))
sketch5.addConstraint(Sketcher.Constraint("DistanceY", 0, 3, -1, 1, Q("86.797492 mm")))
sketch5.setExpression("Constraints[8]", "Params.sketch5_diameter")
pocket4 = doc.addObject("PartDesign::Pocket", "Pocket003")
body.addObject(pocket4)
pocket4.Profile = sketch5
pocket4.Type = "ThroughAll"

sketch6 = doc.addObject("Sketcher::SketchObject", "Sketch005")
body.addObject(sketch6)
sketch6.AttachmentSupport = (doc.XZ_Plane, [""])
sketch6.MapMode = "FlatFace"
sketch6.AttachmentOffset = App.Placement(Vector(0, 0, -0.125 * 25.4), App.Rotation())
sketch6.addGeometry(Part.Circle(Vector(46.828595, -175.697492, 0), Vector(0, 0, 1), 2.38125), False)
sketch6.addGeometry(Part.Circle(Vector(21.428595, -175.697492, 0), Vector(0, 0, 1), 2.38125), False)
sketch6.addGeometry(Part.Circle(Vector(-3.971405, -175.697492, 0), Vector(0, 0, 1), 2.38125), False)
sketch6.addGeometry(Part.Circle(Vector(72.228595, -175.697492, 0), Vector(0, 0, 1), 2.38125), False)
sketch6.addGeometry(Part.Circle(Vector(97.628595, -175.697492, 0), Vector(0, 0, 1), 2.38125), False)
sketch6.addConstraint(Sketcher.Constraint("Equal", 0, 1))
sketch6.addConstraint(Sketcher.Constraint("Equal", 1, 2))
sketch6.addConstraint(Sketcher.Constraint("Equal", 2, 3))
sketch6.addConstraint(Sketcher.Constraint("Equal", 3, 4))
sketch6.addConstraint(Sketcher.Constraint("Horizontal", 0, 3, 1, 3))
sketch6.addConstraint(Sketcher.Constraint("Horizontal", 1, 3, 2, 3))
sketch6.addConstraint(Sketcher.Constraint("Horizontal", 2, 3, 3, 3))
sketch6.addConstraint(Sketcher.Constraint("Horizontal", 3, 3, 4, 3))
sketch6.addConstraint(Sketcher.Constraint("Diameter", 0, Q("0.1875 in")))
sketch6.addConstraint(Sketcher.Constraint("DistanceX", 1, 3, 0, 3, Q("1 in")))
sketch6.addConstraint(Sketcher.Constraint("DistanceX", 2, 3, 1, 3, Q("1 in")))
sketch6.addConstraint(Sketcher.Constraint("DistanceX", 0, 3, 3, 3, Q("1 in")))
sketch6.addConstraint(Sketcher.Constraint("DistanceX", 3, 3, 4, 3, Q("1 in")))
sketch6.addConstraint(Sketcher.Constraint("DistanceY", 0, 3, -1, 1, Q("175.697492 mm")))
sketch6.addConstraint(Sketcher.Constraint("DistanceX", -1, 1, 0, 3, Q("46.828595 mm")))
sketch6.setExpression("Constraints[8]", "Params.sketch6_diameter")
pocket5 = doc.addObject("PartDesign::Pocket", "Pocket004")
body.addObject(pocket5)
pocket5.Profile = sketch6
pocket5.Type = "ThroughAll"
pocket5.Reversed = True

sketch7 = doc.addObject("Sketcher::SketchObject", "Sketch006")
body.addObject(sketch7)
sketch7.AttachmentSupport = (doc.XZ_Plane, [""])
sketch7.MapMode = "FlatFace"
sketch7.AttachmentOffset = App.Placement(Vector(0, 0, -0.125 * 25.4), App.Rotation())
sketch7.addGeometry(Part.Circle(Vector(-68.106405, 97.987508, 0), Vector(0, 0, 1), 14.2875), False)
sketch7.addGeometry(Part.Circle(Vector(161.763595, 97.987508, 0), Vector(0, 0, 1), 14.2875), False)
sketch7.addConstraint(Sketcher.Constraint("Equal", 0, 1))
sketch7.addConstraint(Sketcher.Constraint("Horizontal", 0, 3, 1, 3))
sketch7.addConstraint(Sketcher.Constraint("Diameter", 0, Q("1.125 in")))
sketch7.addConstraint(Sketcher.Constraint("DistanceX", 0, 3, 1, 3, Q("9.05 in")))
sketch7.addConstraint(Sketcher.Constraint("DistanceY", -1, 1, 0, 3, Q("97.987508 mm")))
sketch7.addConstraint(Sketcher.Constraint("DistanceX", 0, 3, -1, 1, Q("68.106405 mm")))
sketch7.setExpression("Constraints[2]", "Params.sketch7_diameter")
pocket6 = doc.addObject("PartDesign::Pocket", "Pocket005")
body.addObject(pocket6)
pocket6.Profile = sketch7
pocket6.setExpression("Length", "Params.pocket6_length")
pocket6.Reversed = True

sketch8 = doc.addObject("Sketcher::SketchObject", "Sketch007")
body.addObject(sketch8)
sketch8.AttachmentSupport = (doc.XZ_Plane, [""])
sketch8.MapMode = "FlatFace"
sketch8.AttachmentOffset = App.Placement(Vector(0, 0, -0.125 * 25.4), App.Rotation())
sketch8.addGeometry(Part.Circle(Vector(167.478595, -35.997492, 0), Vector(0, 0, 1), 2.38125), False)
sketch8.addGeometry(Part.Circle(Vector(167.478595, -61.397492, 0), Vector(0, 0, 1), 2.38125), False)
sketch8.addGeometry(Part.Circle(Vector(167.478595, -86.797492, 0), Vector(0, 0, 1), 2.38125), False)
sketch8.addGeometry(Part.Circle(Vector(167.478595, -10.597492, 0), Vector(0, 0, 1), 2.38125), False)
sketch8.addGeometry(Part.Circle(Vector(167.478595, 14.802508, 0), Vector(0, 0, 1), 2.38125), False)
sketch8.addGeometry(Part.Circle(Vector(-73.821405, 14.802508, 0), Vector(0, 0, 1), 2.38125), False)
sketch8.addGeometry(Part.Circle(Vector(-73.821405, -10.597492, 0), Vector(0, 0, 1), 2.38125), False)
sketch8.addGeometry(Part.Circle(Vector(-73.821405, -35.997492, 0), Vector(0, 0, 1), 2.38125), False)
sketch8.addGeometry(Part.Circle(Vector(-73.821405, -61.397492, 0), Vector(0, 0, 1), 2.38125), False)
sketch8.addGeometry(Part.Circle(Vector(-73.821405, -86.797492, 0), Vector(0, 0, 1), 2.38125), False)
sketch8.addConstraint(Sketcher.Constraint("Equal", 0, 1))
sketch8.addConstraint(Sketcher.Constraint("Equal", 1, 2))
sketch8.addConstraint(Sketcher.Constraint("Equal", 2, 3))
sketch8.addConstraint(Sketcher.Constraint("Equal", 3, 4))
sketch8.addConstraint(Sketcher.Constraint("Equal", 4, 5))
sketch8.addConstraint(Sketcher.Constraint("Equal", 5, 6))
sketch8.addConstraint(Sketcher.Constraint("Equal", 6, 7))
sketch8.addConstraint(Sketcher.Constraint("Equal", 7, 8))
sketch8.addConstraint(Sketcher.Constraint("Equal", 8, 9))
sketch8.addConstraint(Sketcher.Constraint("Horizontal", 4, 3, 5, 3))
sketch8.addConstraint(Sketcher.Constraint("Horizontal", 3, 3, 6, 3))
sketch8.addConstraint(Sketcher.Constraint("Horizontal", 0, 3, 7, 3))
sketch8.addConstraint(Sketcher.Constraint("Horizontal", 1, 3, 8, 3))
sketch8.addConstraint(Sketcher.Constraint("Horizontal", 2, 3, 9, 3))
sketch8.addConstraint(Sketcher.Constraint("Vertical", 0, 3, 1, 3))
sketch8.addConstraint(Sketcher.Constraint("Vertical", 1, 3, 2, 3))
sketch8.addConstraint(Sketcher.Constraint("Vertical", 2, 3, 3, 3))
sketch8.addConstraint(Sketcher.Constraint("Vertical", 3, 3, 4, 3))
sketch8.addConstraint(Sketcher.Constraint("Vertical", 5, 3, 6, 3))
sketch8.addConstraint(Sketcher.Constraint("Vertical", 6, 3, 7, 3))
sketch8.addConstraint(Sketcher.Constraint("Vertical", 7, 3, 8, 3))
sketch8.addConstraint(Sketcher.Constraint("Vertical", 8, 3, 9, 3))
sketch8.addConstraint(Sketcher.Constraint("Diameter", 0, Q("0.1875 in")))
sketch8.addConstraint(Sketcher.Constraint("DistanceY", 1, 3, 0, 3, Q("1 in")))
sketch8.addConstraint(Sketcher.Constraint("DistanceY", 2, 3, 1, 3, Q("1 in")))
sketch8.addConstraint(Sketcher.Constraint("DistanceY", 0, 3, 3, 3, Q("1 in")))
sketch8.addConstraint(Sketcher.Constraint("DistanceY", 3, 3, 4, 3, Q("1 in")))
sketch8.addConstraint(Sketcher.Constraint("DistanceX", 5, 3, 4, 3, Q("9.5 in")))
sketch8.addConstraint(Sketcher.Constraint("DistanceY", 0, 3, -1, 1, Q("35.997492 mm")))
sketch8.addConstraint(Sketcher.Constraint("DistanceX", -1, 1, 0, 3, Q("167.478595 mm")))
sketch8.setExpression("Constraints[22]", "Params.sketch8_diameter")
pocket7 = doc.addObject("PartDesign::Pocket", "Pocket006")
body.addObject(pocket7)
pocket7.Profile = sketch8
pocket7.Type = "ThroughAll"
pocket7.Reversed = True

sketch9 = doc.addObject("Sketcher::SketchObject", "Sketch008")
body.addObject(sketch9)
sketch9.AttachmentSupport = (doc.YZ_Plane, [""])
sketch9.MapMode = "FlatFace"
sketch9.AttachmentOffset = App.Placement(Vector(0, 0, -86.521405), App.Rotation())
sketch9.addGeometry(Part.LineSegment(Vector(20.032348, -175.697492, 0), Vector(16.366174, -182.047492, 0)), False)
sketch9.addGeometry(Part.LineSegment(Vector(16.366174, -182.047492, 0), Vector(9.033826, -182.047492, 0)), False)
sketch9.addGeometry(Part.LineSegment(Vector(9.033826, -182.047492, 0), Vector(5.367652, -175.697492, 0)), False)
sketch9.addGeometry(Part.LineSegment(Vector(5.367652, -175.697492, 0), Vector(9.033826, -169.347492, 0)), False)
sketch9.addGeometry(Part.LineSegment(Vector(9.033826, -169.347492, 0), Vector(16.366174, -169.347492, 0)), False)
sketch9.addGeometry(Part.LineSegment(Vector(16.366174, -169.347492, 0), Vector(20.032348, -175.697492, 0)), False)
sketch9.addConstraint(Sketcher.Constraint("Coincident", 0, 2, 1, 1))
sketch9.addConstraint(Sketcher.Constraint("Coincident", 1, 2, 2, 1))
sketch9.addConstraint(Sketcher.Constraint("Coincident", 2, 2, 3, 1))
sketch9.addConstraint(Sketcher.Constraint("Coincident", 3, 2, 4, 1))
sketch9.addConstraint(Sketcher.Constraint("Coincident", 4, 2, 5, 1))
sketch9.addConstraint(Sketcher.Constraint("Coincident", 5, 2, 0, 1))
sketch9.addConstraint(Sketcher.Constraint("Horizontal", 1))
sketch9.addConstraint(Sketcher.Constraint("Horizontal", 4))
sketch9.addConstraint(Sketcher.Constraint("Parallel", 0, 3))
sketch9.addConstraint(Sketcher.Constraint("Parallel", 2, 5))
sketch9.addConstraint(Sketcher.Constraint("Horizontal", 2, 2, 5, 2))
sketch9.addConstraint(Sketcher.Constraint("Vertical", 1, 2, 3, 2))
sketch9.addConstraint(Sketcher.Constraint("Vertical", 0, 2, 4, 2))
sketch9.addConstraint(Sketcher.Constraint("Angle", 0, Q("-120 deg")))
sketch9.addConstraint(Sketcher.Constraint("DistanceY", 1, 2, 3, 2, Q("0.5 in")))
sketch9.addConstraint(Sketcher.Constraint("DistanceX", 1, 2, 1, 1, Q("7.332348 mm")))
sketch9.addConstraint(Sketcher.Constraint("DistanceY", 0, 2, -1, 1, Q("182.047492 mm")))
sketch9.addConstraint(Sketcher.Constraint("DistanceX", -1, 1, 2, 2, Q("5.367652 mm")))
pocket8 = doc.addObject("PartDesign::Pocket", "Pocket007")
body.addObject(pocket8)
pocket8.Profile = sketch9
pocket8.Type = "ThroughAll"
pocket8.Reversed = True

doc.recompute()
